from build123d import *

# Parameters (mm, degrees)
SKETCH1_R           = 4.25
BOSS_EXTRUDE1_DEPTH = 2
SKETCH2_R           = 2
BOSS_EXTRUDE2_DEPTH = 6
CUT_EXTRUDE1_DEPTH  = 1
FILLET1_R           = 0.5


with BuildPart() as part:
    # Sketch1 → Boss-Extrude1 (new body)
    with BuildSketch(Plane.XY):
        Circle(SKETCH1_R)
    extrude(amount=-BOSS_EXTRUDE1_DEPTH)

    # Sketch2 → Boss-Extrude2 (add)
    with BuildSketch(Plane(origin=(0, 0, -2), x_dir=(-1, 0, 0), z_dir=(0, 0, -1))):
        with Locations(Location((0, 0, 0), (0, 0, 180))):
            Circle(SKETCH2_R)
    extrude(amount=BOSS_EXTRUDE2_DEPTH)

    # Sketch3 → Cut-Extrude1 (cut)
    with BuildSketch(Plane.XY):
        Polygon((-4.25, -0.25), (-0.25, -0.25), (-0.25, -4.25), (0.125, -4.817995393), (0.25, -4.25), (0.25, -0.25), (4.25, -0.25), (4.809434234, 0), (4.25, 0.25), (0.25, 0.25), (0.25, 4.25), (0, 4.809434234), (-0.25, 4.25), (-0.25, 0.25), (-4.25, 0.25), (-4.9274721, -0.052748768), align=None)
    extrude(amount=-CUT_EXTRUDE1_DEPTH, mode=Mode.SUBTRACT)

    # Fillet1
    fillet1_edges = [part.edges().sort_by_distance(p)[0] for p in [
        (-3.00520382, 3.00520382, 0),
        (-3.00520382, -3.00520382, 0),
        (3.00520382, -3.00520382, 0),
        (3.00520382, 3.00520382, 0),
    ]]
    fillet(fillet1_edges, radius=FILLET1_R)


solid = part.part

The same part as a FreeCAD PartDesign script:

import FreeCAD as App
import Part
import Sketcher
from FreeCAD import Vector


def edges_at(feature, points):
    """Names of the edges that pass closest to the given points."""
    edges = feature.Shape.Edges
    near = lambda p: min(range(len(edges)), key=lambda i: edges[i].distToShape(Part.Vertex(*p))[0])
    return sorted({f"Edge{near(p) + 1}" for p in points})

doc = App.newDocument("Part")
body = doc.addObject("PartDesign::Body", "Body")

sketch1 = doc.addObject("Sketcher::SketchObject", "Sketch")
body.addObject(sketch1)
sketch1.AttachmentSupport = (doc.XY_Plane, [""])
sketch1.MapMode = "FlatFace"
sketch1.addGeometry(Part.Circle(Vector(0, 0, 0), Vector(0, 0, 1), 4.2), False)
sketch1.addConstraint(Sketcher.Constraint("Coincident", 0, 3, -1, 1))
sketch1.addConstraint(Sketcher.Constraint("Diameter", 0, 8.5))
pad1 = doc.addObject("PartDesign::Pad", "Pad")
body.addObject(pad1)
pad1.Profile = sketch1
pad1.Length = 2
pad1.Reversed = True

sketch2 = doc.addObject("Sketcher::SketchObject", "Sketch001")
body.addObject(sketch2)
sketch2.AttachmentSupport = (doc.XY_Plane, [""])
sketch2.MapMode = "FlatFace"
sketch2.AttachmentOffset = App.Placement(Vector(0, 0, -2), App.Rotation())
sketch2.addGeometry(Part.Circle(Vector(0, 0, 0), Vector(0, 0, 1), 2), False)
sketch2.addConstraint(Sketcher.Constraint("Coincident", 0, 3, -1, 1))
sketch2.addConstraint(Sketcher.Constraint("Diameter", 0, 4.0))
pad2 = doc.addObject("PartDesign::Pad", "Pad001")
body.addObject(pad2)
pad2.Profile = sketch2
pad2.Length = 6
pad2.Reversed = True

sketch3 = doc.addObject("Sketcher::SketchObject", "Sketch002")
body.addObject(sketch3)
sketch3.AttachmentSupport = (doc.XY_Plane, [""])
sketch3.MapMode = "FlatFace"
sketch3.addGeometry(Part.LineSegment(Vector(-4.2, -0.2, 0), Vector(-0.2, -0.2, 0)), False)
sketch3.addGeometry(Part.LineSegment(Vector(-0.2, -0.2, 0), Vector(-0.2, -4.2, 0)), False)
sketch3.addGeometry(Part.LineSegment(Vector(-0.2, -4.2, 0), Vector(0.1, -4.8, 0)), False)
sketch3.addGeometry(Part.LineSegment(Vector(0.1, -4.8, 0), Vector(0.2, -4.2, 0)), False)
sketch3.addGeometry(Part.LineSegment(Vector(0.2, -4.2, 0), Vector(0.2, -0.2, 0)), False)
sketch3.addGeometry(Part.LineSegment(Vector(0.2, -0.2, 0), Vector(4.2, -0.2, 0)), False)
sketch3.addGeometry(Part.LineSegment(Vector(4.2, -0.2, 0), Vector(4.8, 0, 0)), False)
sketch3.addGeometry(Part.LineSegment(Vector(4.8, 0, 0), Vector(4.2, 0.2, 0)), False)
sketch3.addGeometry(Part.LineSegment(Vector(4.2, 0.2, 0), Vector(0.2, 0.2, 0)), False)
sketch3.addGeometry(Part.LineSegment(Vector(0.2, 0.2, 0), Vector(0.2, 4.2, 0)), False)
sketch3.addGeometry(Part.LineSegment(Vector(0.2, 4.2, 0), Vector(0, 4.8, 0)), False)
sketch3.addGeometry(Part.LineSegment(Vector(0, 4.8, 0), Vector(-0.2, 4.2, 0)), False)
sketch3.addGeometry(Part.LineSegment(Vector(-0.2, 4.2, 0), Vector(-0.2, 0.2, 0)), False)
sketch3.addGeometry(Part.LineSegment(Vector(-0.2, 0.2, 0), Vector(-4.2, 0.2, 0)), False)
sketch3.addGeometry(Part.LineSegment(Vector(-4.2, 0.2, 0), Vector(-4.9, -0.1, 0)), False)
sketch3.addGeometry(Part.LineSegment(Vector(-4.9, -0.1, 0), Vector(-4.2, -0.2, 0)), False)
sketch3.addConstraint(Sketcher.Constraint("Coincident", 0, 2, 1, 1))
sketch3.addConstraint(Sketcher.Constraint("Coincident", 1, 2, 2, 1))
sketch3.addConstraint(Sketcher.Constraint("Coincident", 2, 2, 3, 1))
sketch3.addConstraint(Sketcher.Constraint("Coincident", 3, 2, 4, 1))
sketch3.addConstraint(Sketcher.Constraint("Coincident", 4, 2, 5, 1))
sketch3.addConstraint(Sketcher.Constraint("Coincident", 5, 2, 6, 1))
sketch3.addConstraint(Sketcher.Constraint("Coincident", 6, 2, 7, 1))
sketch3.addConstraint(Sketcher.Constraint("Coincident", 7, 2, 8, 1))
sketch3.addConstraint(Sketcher.Constraint("Coincident", 8, 2, 9, 1))
sketch3.addConstraint(Sketcher.Constraint("Coincident", 9, 2, 10, 1))
sketch3.addConstraint(Sketcher.Constraint("Coincident", 10, 2, 11, 1))
sketch3.addConstraint(Sketcher.Constraint("Coincident", 11, 2, 12, 1))
sketch3.addConstraint(Sketcher.Constraint("Coincident", 12, 2, 13, 1))
sketch3.addConstraint(Sketcher.Constraint("Coincident", 13, 2, 14, 1))
sketch3.addConstraint(Sketcher.Constraint("Coincident", 14, 2, 15, 1))
sketch3.addConstraint(Sketcher.Constraint("Coincident", 15, 2, 0, 1))
sketch3.addConstraint(Sketcher.Constraint("Horizontal", 0))
sketch3.addConstraint(Sketcher.Constraint("Vertical", 1))
sketch3.addConstraint(Sketcher.Constraint("Vertical", 4))
sketch3.addConstraint(Sketcher.Constraint("Horizontal", 5))
sketch3.addConstraint(Sketcher.Constraint("Horizontal", 8))
sketch3.addConstraint(Sketcher.Constraint("Vertical", 9))
sketch3.addConstraint(Sketcher.Constraint("Vertical", 12))
sketch3.addConstraint(Sketcher.Constraint("Horizontal", 13))
sketch3.addConstraint(Sketcher.Constraint("Symmetric", 0, 2, 8, 2, -1, 1))
sketch3.addConstraint(Sketcher.Constraint("Symmetric", 3, 2, 11, 2, -1, 1))
sketch3.addConstraint(Sketcher.Constraint("Symmetric", 5, 2, 13, 2, -1, 1))
sketch3.addConstraint(Sketcher.Constraint("Symmetric", 1, 2, 3, 2, -2))
sketch3.addConstraint(Sketcher.Constraint("Symmetric", 7, 2, 13, 2, -2))
sketch3.addConstraint(Sketcher.Constraint("PointOnObject", 6, 2, -1))
sketch3.addConstraint(Sketcher.Constraint("PointOnObject", 10, 2, -2))
sketch3.addConstraint(Sketcher.Constraint("Perpendicular", 6, 10))
sketch3.addConstraint(Sketcher.Constraint("Perpendicular", 7, 11))
sketch3.addConstraint(Sketcher.Constraint("Perpendicular", 10, 14))
sketch3.addConstraint(Sketcher.Constraint("Vertical", 13, 2, 15, 2))
sketch3.addConstraint(Sketcher.Constraint("Equal", 13, 1))
sketch3.addConstraint(Sketcher.Constraint("Equal", 7, 10))
sketch3.addConstraint(Sketcher.Constraint("DistanceX", 0, 1, 0, 2, 4.0))
sketch3.addConstraint(Sketcher.Constraint("DistanceX", 1, 2, 3, 2, 0.5))
sketch3.addConstraint(Sketcher.Constraint("DistanceX", -1, 1, 2, 2, 0.125))
sketch3.addConstraint(Sketcher.Constraint("Distance", 2, 0.68062))
sketch3.addConstraint(Sketcher.Constraint("Distance", 14, 0.742041))
sketch3.addConstraint(Sketcher.Constraint("DistanceY", 14, 2, -1, 1, 0.052749))
pocket1 = doc.addObject("PartDesign::Pocket", "Pocket")
body.addObject(pocket1)
pocket1.Profile = sketch3
pocket1.Length = 1
doc.recompute()

fillet = doc.addObject("PartDesign::Fillet", "Fillet")
body.addObject(fillet)
fillet.Base = (pocket1, edges_at(pocket1, [
    (-3.005, 3.005, 0),
    (-3.005, -3.005, 0),
    (3.005, -3.005, 0),
    (3.005, 3.005, 0),
]))
fillet.Radius = 0.5

doc.recompute()
